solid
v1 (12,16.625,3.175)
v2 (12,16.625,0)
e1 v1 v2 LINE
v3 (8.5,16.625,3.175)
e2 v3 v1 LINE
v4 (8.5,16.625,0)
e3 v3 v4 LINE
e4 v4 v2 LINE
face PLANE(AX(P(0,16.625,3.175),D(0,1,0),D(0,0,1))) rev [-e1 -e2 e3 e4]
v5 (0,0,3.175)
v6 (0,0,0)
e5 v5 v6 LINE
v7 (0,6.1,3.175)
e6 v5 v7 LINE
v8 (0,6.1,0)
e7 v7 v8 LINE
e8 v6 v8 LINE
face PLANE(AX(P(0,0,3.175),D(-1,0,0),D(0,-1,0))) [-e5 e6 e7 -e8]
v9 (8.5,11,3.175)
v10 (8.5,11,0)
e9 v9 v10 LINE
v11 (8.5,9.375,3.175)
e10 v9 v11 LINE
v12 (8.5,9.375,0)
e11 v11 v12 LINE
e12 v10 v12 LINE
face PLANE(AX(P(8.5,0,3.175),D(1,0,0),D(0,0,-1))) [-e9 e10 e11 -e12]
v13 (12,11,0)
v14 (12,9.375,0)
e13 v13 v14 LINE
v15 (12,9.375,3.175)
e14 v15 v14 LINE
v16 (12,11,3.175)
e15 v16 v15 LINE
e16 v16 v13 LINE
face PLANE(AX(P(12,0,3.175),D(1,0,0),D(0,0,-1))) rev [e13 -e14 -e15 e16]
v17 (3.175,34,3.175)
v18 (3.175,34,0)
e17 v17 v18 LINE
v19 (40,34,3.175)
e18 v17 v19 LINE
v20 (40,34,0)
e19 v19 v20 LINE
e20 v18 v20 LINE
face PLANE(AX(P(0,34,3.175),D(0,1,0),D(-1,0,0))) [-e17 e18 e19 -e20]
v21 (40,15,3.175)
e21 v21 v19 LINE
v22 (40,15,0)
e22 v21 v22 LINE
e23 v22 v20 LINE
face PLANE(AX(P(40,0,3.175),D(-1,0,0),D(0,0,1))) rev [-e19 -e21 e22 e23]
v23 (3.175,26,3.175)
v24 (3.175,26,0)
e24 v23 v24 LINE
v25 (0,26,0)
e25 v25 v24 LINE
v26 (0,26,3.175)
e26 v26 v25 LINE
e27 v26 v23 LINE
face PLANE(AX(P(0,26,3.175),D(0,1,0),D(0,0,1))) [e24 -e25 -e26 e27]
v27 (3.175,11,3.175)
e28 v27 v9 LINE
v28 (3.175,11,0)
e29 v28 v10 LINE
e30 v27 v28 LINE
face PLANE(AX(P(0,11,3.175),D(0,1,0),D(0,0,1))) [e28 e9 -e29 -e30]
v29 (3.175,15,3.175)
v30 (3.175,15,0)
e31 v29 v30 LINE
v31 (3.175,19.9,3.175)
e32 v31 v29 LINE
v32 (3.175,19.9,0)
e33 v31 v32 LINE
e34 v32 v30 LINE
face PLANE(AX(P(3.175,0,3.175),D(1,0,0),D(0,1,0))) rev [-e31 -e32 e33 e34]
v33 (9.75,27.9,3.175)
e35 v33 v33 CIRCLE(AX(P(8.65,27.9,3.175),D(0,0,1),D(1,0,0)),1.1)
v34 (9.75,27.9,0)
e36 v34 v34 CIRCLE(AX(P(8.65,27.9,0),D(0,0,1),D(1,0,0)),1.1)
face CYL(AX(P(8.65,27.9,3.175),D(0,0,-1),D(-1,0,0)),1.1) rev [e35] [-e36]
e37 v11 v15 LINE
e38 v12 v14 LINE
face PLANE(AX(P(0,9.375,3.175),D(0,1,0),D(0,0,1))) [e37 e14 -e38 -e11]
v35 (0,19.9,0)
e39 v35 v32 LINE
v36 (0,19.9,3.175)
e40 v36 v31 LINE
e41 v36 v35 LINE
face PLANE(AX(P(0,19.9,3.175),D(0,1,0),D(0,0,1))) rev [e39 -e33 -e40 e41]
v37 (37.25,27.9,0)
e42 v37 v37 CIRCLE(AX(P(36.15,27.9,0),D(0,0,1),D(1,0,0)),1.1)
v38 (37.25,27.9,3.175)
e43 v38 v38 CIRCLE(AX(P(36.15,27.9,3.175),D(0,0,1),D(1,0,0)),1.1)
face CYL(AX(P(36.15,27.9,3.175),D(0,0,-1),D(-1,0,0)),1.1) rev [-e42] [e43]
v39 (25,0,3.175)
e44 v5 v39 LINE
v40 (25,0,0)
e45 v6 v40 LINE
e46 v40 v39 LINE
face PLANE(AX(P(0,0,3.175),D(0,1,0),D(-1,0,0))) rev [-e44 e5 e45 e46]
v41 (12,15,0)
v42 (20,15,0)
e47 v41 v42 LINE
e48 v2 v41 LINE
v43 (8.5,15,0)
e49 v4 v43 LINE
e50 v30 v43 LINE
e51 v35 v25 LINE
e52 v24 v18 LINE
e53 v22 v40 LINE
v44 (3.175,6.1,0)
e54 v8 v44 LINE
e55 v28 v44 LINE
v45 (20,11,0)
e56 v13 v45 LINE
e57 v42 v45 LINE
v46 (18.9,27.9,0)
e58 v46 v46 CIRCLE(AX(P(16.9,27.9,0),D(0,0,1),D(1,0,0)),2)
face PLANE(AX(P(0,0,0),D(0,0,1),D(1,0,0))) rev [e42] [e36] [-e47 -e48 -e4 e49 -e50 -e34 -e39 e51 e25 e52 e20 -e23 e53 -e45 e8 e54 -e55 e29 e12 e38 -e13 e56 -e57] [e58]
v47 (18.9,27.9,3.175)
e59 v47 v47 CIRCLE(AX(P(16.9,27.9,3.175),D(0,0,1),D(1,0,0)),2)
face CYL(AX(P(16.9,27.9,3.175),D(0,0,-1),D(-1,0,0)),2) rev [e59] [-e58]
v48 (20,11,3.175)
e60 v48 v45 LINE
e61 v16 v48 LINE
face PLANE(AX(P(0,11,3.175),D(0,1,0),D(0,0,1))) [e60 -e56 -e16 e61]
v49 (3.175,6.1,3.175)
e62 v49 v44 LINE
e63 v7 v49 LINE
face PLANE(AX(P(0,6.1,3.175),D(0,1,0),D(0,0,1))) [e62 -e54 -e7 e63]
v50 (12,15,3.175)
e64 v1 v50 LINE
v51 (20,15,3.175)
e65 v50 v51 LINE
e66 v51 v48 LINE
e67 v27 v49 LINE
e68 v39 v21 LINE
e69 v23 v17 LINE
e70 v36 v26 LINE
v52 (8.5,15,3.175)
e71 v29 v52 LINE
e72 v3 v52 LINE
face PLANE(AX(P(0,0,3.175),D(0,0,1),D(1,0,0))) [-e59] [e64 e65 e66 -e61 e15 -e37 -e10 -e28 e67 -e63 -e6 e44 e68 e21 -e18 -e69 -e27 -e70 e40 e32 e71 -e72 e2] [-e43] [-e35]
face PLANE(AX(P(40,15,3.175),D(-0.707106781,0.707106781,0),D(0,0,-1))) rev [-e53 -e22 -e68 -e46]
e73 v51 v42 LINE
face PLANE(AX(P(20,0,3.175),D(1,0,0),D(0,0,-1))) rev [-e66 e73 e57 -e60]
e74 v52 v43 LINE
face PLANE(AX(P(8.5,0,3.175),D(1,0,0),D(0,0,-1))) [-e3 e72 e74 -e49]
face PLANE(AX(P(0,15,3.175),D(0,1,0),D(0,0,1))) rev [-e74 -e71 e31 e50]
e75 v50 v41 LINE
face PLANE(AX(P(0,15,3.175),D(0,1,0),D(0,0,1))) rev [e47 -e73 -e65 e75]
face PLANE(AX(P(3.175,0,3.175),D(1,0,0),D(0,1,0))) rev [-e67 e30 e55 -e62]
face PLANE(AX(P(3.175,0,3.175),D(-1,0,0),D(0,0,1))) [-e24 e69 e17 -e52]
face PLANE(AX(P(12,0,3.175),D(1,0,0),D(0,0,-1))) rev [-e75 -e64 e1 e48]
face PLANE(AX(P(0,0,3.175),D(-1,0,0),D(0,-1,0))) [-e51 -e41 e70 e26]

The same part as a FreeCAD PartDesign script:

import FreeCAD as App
import Part
import Sketcher
Q = App.Units.Quantity


def edges_at(feature, points):
    """Names of the edges that pass closest to the given points."""
    edges = feature.Shape.Edges
    near = lambda p: min(range(len(edges)), key=lambda i: edges[i].distToShape(Part.Vertex(*p))[0])
    return sorted({f"Edge{near(p) + 1}" for p in points})

doc = App.newDocument("Part")
body = doc.addObject("PartDesign::Body", "Body")

sketch1 = body.newObject("Sketcher::SketchObject", "Sketch")
sketch1.AttachmentSupport = (doc.getObject("XY_Plane"), [""])
sketch1.MapMode = "FlatFace"
sketch1.addGeometry([
    Part.LineSegment(App.Vector(3.2, 34, 0), App.Vector(3.2, 26, 0)),
    Part.LineSegment(App.Vector(3.2, 26, 0), App.Vector(0, 26, 0)),
    Part.LineSegment(App.Vector(0, 26, 0), App.Vector(0, 19.9, 0)),
    Part.LineSegment(App.Vector(0, 19.9, 0), App.Vector(3.2, 19.9, 0)),
    Part.LineSegment(App.Vector(3.2, 19.9, 0), App.Vector(3.2, 15, 0)),
    Part.LineSegment(App.Vector(3.2, 15, 0), App.Vector(8.5, 15, 0)),
    Part.LineSegment(App.Vector(8.5, 15, 0), App.Vector(8.5, 16.6, 0)),
    Part.LineSegment(App.Vector(8.5, 16.6, 0), App.Vector(12, 16.6, 0)),
    Part.LineSegment(App.Vector(12, 16.6, 0), App.Vector(12, 15, 0)),
    Part.LineSegment(App.Vector(12, 15, 0), App.Vector(20, 15, 0)),
    Part.LineSegment(App.Vector(20, 15, 0), App.Vector(20, 11, 0)),
    Part.LineSegment(App.Vector(20, 11, 0), App.Vector(12, 11, 0)),
    Part.LineSegment(App.Vector(12, 11, 0), App.Vector(12, 9.4, 0)),
    Part.LineSegment(App.Vector(12, 9.4, 0), App.Vector(8.5, 9.4, 0)),
    Part.LineSegment(App.Vector(8.5, 9.4, 0), App.Vector(8.5, 11, 0)),
    Part.LineSegment(App.Vector(8.5, 11, 0), App.Vector(3.2, 11, 0)),
    Part.LineSegment(App.Vector(3.2, 11, 0), App.Vector(3.2, 6.1, 0)),
    Part.LineSegment(App.Vector(3.2, 6.1, 0), App.Vector(0, 6.1, 0)),
    Part.LineSegment(App.Vector(0, 6.1, 0), App.Vector(0, 0, 0)),
    Part.LineSegment(App.Vector(0, 0, 0), App.Vector(40, 0, 0)),
    Part.LineSegment(App.Vector(40, 0, 0), App.Vector(40, 34, 0)),
    Part.LineSegment(App.Vector(40, 34, 0), App.Vector(3.2, 34, 0)),
    Part.Circle(App.Vector(8.7, 27.9, 0), App.Vector(0, 0, 1), 1.1),
    Part.Circle(App.Vector(36.1, 27.9, 0), App.Vector(0, 0, 1), 1.1),
    Part.Circle(App.Vector(16.9, 27.9, 0), App.Vector(0, 0, 1), 2),
], False)
sketch1.addConstraint([
    Sketcher.Constraint("Coincident", 0, 2, 1, 1),
    Sketcher.Constraint("Coincident", 1, 2, 2, 1),
    Sketcher.Constraint("Coincident", 2, 2, 3, 1),
    Sketcher.Constraint("Coincident", 3, 2, 4, 1),
    Sketcher.Constraint("Coincident", 4, 2, 5, 1),
    Sketcher.Constraint("Coincident", 5, 2, 6, 1),
    Sketcher.Constraint("Coincident", 6, 2, 7, 1),
    Sketcher.Constraint("Coincident", 7, 2, 8, 1),
    Sketcher.Constraint("Coincident", 8, 2, 9, 1),
    Sketcher.Constraint("Coincident", 9, 2, 10, 1),
    Sketcher.Constraint("Coincident", 10, 2, 11, 1),
    Sketcher.Constraint("Coincident", 11, 2, 12, 1),
    Sketcher.Constraint("Coincident", 12, 2, 13, 1),
    Sketcher.Constraint("Coincident", 13, 2, 14, 1),
    Sketcher.Constraint("Coincident", 14, 2, 15, 1),
    Sketcher.Constraint("Coincident", 15, 2, 16, 1),
    Sketcher.Constraint("Coincident", 16, 2, 17, 1),
    Sketcher.Constraint("Coincident", 17, 2, 18, 1),
    Sketcher.Constraint("Coincident", 18, 2, 19, 1),
    Sketcher.Constraint("Coincident", 19, 2, 20, 1),
    Sketcher.Constraint("Coincident", 20, 2, 21, 1),
    Sketcher.Constraint("Coincident", 21, 2, 0, 1),
    Sketcher.Constraint("Vertical", 0),
    Sketcher.Constraint("Horizontal", 1),
    Sketcher.Constraint("Vertical", 2),
    Sketcher.Constraint("Horizontal", 3),
    Sketcher.Constraint("Vertical", 4),
    Sketcher.Constraint("Horizontal", 5),
    Sketcher.Constraint("Vertical", 6),
    Sketcher.Constraint("Horizontal", 7),
    Sketcher.Constraint("Vertical", 8),
    Sketcher.Constraint("Horizontal", 9),
    Sketcher.Constraint("Vertical", 10),
    Sketcher.Constraint("Horizontal", 11),
    Sketcher.Constraint("Vertical", 12),
    Sketcher.Constraint("Horizontal", 13),
    Sketcher.Constraint("Vertical", 14),
    Sketcher.Constraint("Horizontal", 15),
    Sketcher.Constraint("Vertical", 16),
    Sketcher.Constraint("Horizontal", 17),
    Sketcher.Constraint("Vertical", 18),
    Sketcher.Constraint("Horizontal", 19),
    Sketcher.Constraint("Vertical", 20),
    Sketcher.Constraint("Horizontal", 21),
    Sketcher.Constraint("Coincident", 18, 2, -1, 1),
    Sketcher.Constraint("Equal", 22, 23),
    Sketcher.Constraint("PointOnObject", 1, 2, -2),
    Sketcher.Constraint("Horizontal", 22, 3, 23, 3),
    Sketcher.Constraint("Horizontal", 23, 3, 24, 3),
    Sketcher.Constraint("Horizontal", 5, 2, 8, 2),
    Sketcher.Constraint("Horizontal", 11, 2, 14, 2),
    Sketcher.Constraint("Vertical", 0, 2, 3, 2),
    Sketcher.Constraint("Vertical", 8, 2, 11, 2),
    Sketcher.Constraint("Vertical", 6, 2, 13, 2),
    Sketcher.Constraint("Vertical", 4, 2, 15, 2),
    Sketcher.Constraint("Equal", 11, 0),
    Sketcher.Constraint("Equal", 8, 12),
    Sketcher.Constraint("Equal", 4, 16),
    Sketcher.Constraint("Equal", 2, 18),
    Sketcher.Constraint("Diameter", 24, Q("4 mm")),
    Sketcher.Constraint("Diameter", 22, Q("2.2 mm")),
    Sketcher.Constraint("DistanceX", 9, 1, 9, 2, Q("8 mm")),
    Sketcher.Constraint("DistanceX", 19, 1, 19, 2, Q("40 mm")),
    Sketcher.Constraint("DistanceY", 10, 2, 10, 1, Q("4 mm")),
    Sketcher.Constraint("DistanceY", 20, 1, 20, 2, Q("34 mm")),
    Sketcher.Constraint("DistanceX", 7, 1, 7, 2, Q("3.5 mm")),
    Sketcher.Constraint("DistanceY", 2, 2, 2, 1, Q("6.1 mm")),
    Sketcher.Constraint("DistanceX", -1, 1, 7, 2, Q("12 mm")),
    Sketcher.Constraint("DistanceY", 2, 2, 22, 3, Q("8 mm")),
    Sketcher.Constraint("DistanceX", -1, 1, 24, 3, Q("16.9 mm")),
    Sketcher.Constraint("DistanceX", 22, 3, 23, 3, Q("27.5 mm")),
    Sketcher.Constraint("DistanceX", 1, 2, 1, 1, Q("3.175 mm")),
    Sketcher.Constraint("DistanceY", 6, 1, 6, 2, Q("1.625 mm")),
    Sketcher.Constraint("DistanceX", -1, 1, 22, 3, Q("8.65 mm")),
])
pad1 = body.newObject("PartDesign::Pad", "Pad")
pad1.Profile = sketch1
pad1.Length = 3.175
doc.recompute()

chamfer = body.newObject("PartDesign::Chamfer", "Chamfer")
chamfer.Base = (pad1, edges_at(pad1, [(40, 0, 1.587)]))
chamfer.Size = 15

doc.recompute()
